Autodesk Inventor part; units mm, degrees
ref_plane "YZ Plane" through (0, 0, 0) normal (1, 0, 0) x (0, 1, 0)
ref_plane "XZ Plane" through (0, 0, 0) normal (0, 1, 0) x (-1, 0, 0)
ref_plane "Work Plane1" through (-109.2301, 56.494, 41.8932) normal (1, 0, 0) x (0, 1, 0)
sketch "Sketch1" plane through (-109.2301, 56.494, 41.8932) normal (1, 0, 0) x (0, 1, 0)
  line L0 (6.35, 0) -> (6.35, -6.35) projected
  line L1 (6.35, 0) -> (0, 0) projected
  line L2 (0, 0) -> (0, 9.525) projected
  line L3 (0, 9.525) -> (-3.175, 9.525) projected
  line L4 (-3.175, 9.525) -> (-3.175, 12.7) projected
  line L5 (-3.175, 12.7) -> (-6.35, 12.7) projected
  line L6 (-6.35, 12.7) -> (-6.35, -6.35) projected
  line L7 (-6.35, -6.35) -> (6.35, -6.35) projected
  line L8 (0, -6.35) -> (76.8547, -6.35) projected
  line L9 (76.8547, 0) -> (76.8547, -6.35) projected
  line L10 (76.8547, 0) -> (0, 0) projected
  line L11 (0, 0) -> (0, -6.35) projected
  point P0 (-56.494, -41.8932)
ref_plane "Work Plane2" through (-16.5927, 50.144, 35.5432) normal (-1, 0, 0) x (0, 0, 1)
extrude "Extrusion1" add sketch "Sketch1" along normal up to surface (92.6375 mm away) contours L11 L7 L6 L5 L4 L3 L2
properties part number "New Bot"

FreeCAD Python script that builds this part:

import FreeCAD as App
import Part
import Sketcher
Q = App.Units.Quantity

doc = App.newDocument("Part")
body = doc.addObject("PartDesign::Body", "Body")

# Sketch on YZ plane
sketch1 = body.newObject("Sketcher::SketchObject", "Sketch")
sketch1.AttachmentSupport = (doc.getObject("YZ_Plane"), [""])
sketch1.MapMode = "FlatFace"
sketch1.AttachmentOffset = App.Placement(App.Vector(0, 0, -4.3003976 * 25.4), App.Rotation())
sketch1.addGeometry([
    Part.LineSegment(App.Vector(56.494, 35.5432, 0), App.Vector(56.494, 51.4182, 0)),  # 0
    Part.LineSegment(App.Vector(56.494, 51.4182, 0), App.Vector(53.319, 51.4182, 0)),  # 1
    Part.LineSegment(App.Vector(53.319, 51.4182, 0), App.Vector(53.319, 54.5932, 0)),  # 2
    Part.LineSegment(App.Vector(53.319, 54.5932, 0), App.Vector(50.144, 54.5932, 0)),  # 3
    Part.LineSegment(App.Vector(50.144, 54.5932, 0), App.Vector(50.144, 35.5432, 0)),  # 4
    Part.LineSegment(App.Vector(50.144, 35.5432, 0), App.Vector(56.494, 35.5432, 0)),  # 5
], False)
sketch1.addConstraint([
    Sketcher.Constraint("Coincident", 0, 2, 1, 1),
    Sketcher.Constraint("Coincident", 1, 2, 2, 1),
    Sketcher.Constraint("Coincident", 2, 2, 3, 1),
    Sketcher.Constraint("Coincident", 3, 2, 4, 1),
    Sketcher.Constraint("Coincident", 4, 2, 5, 1),
    Sketcher.Constraint("Coincident", 5, 2, 0, 1),
    Sketcher.Constraint("Vertical", 0),
    Sketcher.Constraint("Horizontal", 1),
    Sketcher.Constraint("Vertical", 2),
    Sketcher.Constraint("Horizontal", 3),
    Sketcher.Constraint("Vertical", 4),
    Sketcher.Constraint("Horizontal", 5),
    Sketcher.Constraint("Equal", 1, 3),
    Sketcher.Constraint("Equal", 3, 2),
    Sketcher.Constraint("DistanceX", 5, 1, 5, 2, Q("0.25 in")),
    Sketcher.Constraint("DistanceY", 4, 2, 4, 1, Q("0.75 in")),
    Sketcher.Constraint("DistanceX", -1, 1, 0, 2, Q("56.494 mm")),
    Sketcher.Constraint("DistanceY", -1, 1, 0, 2, Q("51.4182 mm")),
])
pad1 = body.newObject("PartDesign::Pad", "Pad")
pad1.Profile = sketch1
pad1.Length = 92.6375

doc.recompute()
